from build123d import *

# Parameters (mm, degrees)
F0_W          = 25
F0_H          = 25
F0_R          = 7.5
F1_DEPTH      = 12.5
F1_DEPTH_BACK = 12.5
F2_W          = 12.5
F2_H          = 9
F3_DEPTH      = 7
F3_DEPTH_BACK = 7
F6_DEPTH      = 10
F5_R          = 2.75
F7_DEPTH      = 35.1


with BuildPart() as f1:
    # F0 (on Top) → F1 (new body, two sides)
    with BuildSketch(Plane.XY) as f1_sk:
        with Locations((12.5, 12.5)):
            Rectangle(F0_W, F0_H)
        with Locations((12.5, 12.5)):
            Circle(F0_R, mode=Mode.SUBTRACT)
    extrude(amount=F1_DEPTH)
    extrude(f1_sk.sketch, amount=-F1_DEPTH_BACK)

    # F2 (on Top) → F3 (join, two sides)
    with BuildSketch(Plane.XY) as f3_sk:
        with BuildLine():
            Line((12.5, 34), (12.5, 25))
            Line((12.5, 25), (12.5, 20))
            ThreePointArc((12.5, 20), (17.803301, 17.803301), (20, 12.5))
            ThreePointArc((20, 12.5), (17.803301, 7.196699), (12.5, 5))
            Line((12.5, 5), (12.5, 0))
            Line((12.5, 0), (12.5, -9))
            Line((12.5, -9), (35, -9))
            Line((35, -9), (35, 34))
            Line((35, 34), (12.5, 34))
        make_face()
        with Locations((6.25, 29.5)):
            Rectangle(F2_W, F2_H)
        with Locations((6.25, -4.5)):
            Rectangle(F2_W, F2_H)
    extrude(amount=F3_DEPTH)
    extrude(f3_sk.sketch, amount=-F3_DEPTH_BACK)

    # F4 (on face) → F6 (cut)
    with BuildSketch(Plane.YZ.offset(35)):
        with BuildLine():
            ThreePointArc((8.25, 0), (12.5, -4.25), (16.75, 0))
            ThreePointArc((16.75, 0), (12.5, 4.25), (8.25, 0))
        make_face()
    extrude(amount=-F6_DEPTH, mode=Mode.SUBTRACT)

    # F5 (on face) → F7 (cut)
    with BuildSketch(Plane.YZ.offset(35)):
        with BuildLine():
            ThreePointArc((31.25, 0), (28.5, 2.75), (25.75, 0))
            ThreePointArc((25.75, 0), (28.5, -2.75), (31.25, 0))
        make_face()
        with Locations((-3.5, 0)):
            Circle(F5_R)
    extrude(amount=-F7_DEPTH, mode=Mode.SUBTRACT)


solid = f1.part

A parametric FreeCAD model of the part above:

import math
import FreeCAD as App
import Part
import Sketcher
from FreeCAD import Vector


def add_polygon(sketch, points):
    """Adds a closed chain of lines whose ends are joined by coincident constraints."""
    first, n = sketch.GeometryCount, len(points)
    for a, b in zip(points, points[1:] + points[:1]):
        sketch.addGeometry(Part.LineSegment(App.Vector(*a, 0), App.Vector(*b, 0)), False)
    for i in range(n):
        sketch.addConstraint(Sketcher.Constraint("Coincident", first + i, 2, first + (i + 1) % n, 1))

doc = App.newDocument("Part")
body = doc.addObject("PartDesign::Body", "Body")

sketch1 = body.newObject("Sketcher::SketchObject", "Sketch")
sketch1.AttachmentSupport = (doc.getObject("XY_Plane"), [""])
sketch1.MapMode = "FlatFace"
add_polygon(sketch1, [(0, 25), (0, 0), (25, 0), (25, 25)])
sketch1.addGeometry(Part.Circle(Vector(12, 12, 0), Vector(0, 0, 1), 8), False)
sketch1.addConstraint(Sketcher.Constraint("Vertical", 0))
sketch1.addConstraint(Sketcher.Constraint("Horizontal", 1))
sketch1.addConstraint(Sketcher.Constraint("Vertical", 2))
sketch1.addConstraint(Sketcher.Constraint("Horizontal", 3))
sketch1.addConstraint(Sketcher.Constraint("Coincident", 0, 2, -1, 1))
sketch1.addConstraint(Sketcher.Constraint("Equal", 3, 0))
sketch1.addConstraint(Sketcher.Constraint("Diameter", 4, 15.0))
sketch1.addConstraint(Sketcher.Constraint("DistanceX", 1, 1, 1, 2, 25.0))
sketch1.addConstraint(Sketcher.Constraint("DistanceX", -1, 1, 4, 3, 12.5))
sketch1.addConstraint(Sketcher.Constraint("DistanceY", -1, 1, 4, 3, 12.5))
pad1 = body.newObject("PartDesign::Pad", "Pad")
pad1.Profile = sketch1
pad1.Type = "TwoLengths"
pad1.Length = 12.5
pad1.Length2 = 12.5

sketch2 = body.newObject("Sketcher::SketchObject", "Sketch001")
sketch2.AttachmentSupport = (doc.getObject("XY_Plane"), [""])
sketch2.MapMode = "FlatFace"
sketch2.addGeometry(Part.LineSegment(Vector(12, 25, 0), Vector(12, 20, 0)), False)
sketch2.addGeometry(Part.ArcOfCircle(Part.Circle(Vector(13, 13, 0), Vector(0, 0, 1), 7), math.radians(0), math.radians(90)), False)
sketch2.addGeometry(Part.ArcOfCircle(Part.Circle(Vector(13, 12, 0), Vector(0, 0, 1), 7), math.radians(-90), math.radians(0)), False)
sketch2.addGeometry(Part.LineSegment(Vector(12, 5, 0), Vector(12, 0, 0)), False)
sketch2.addGeometry(Part.LineSegment(Vector(12, 0, 0), Vector(0, 0, 0)), False)
sketch2.addGeometry(Part.LineSegment(Vector(0, 0, 0), Vector(0, -9, 0)), False)
sketch2.addGeometry(Part.LineSegment(Vector(0, -9, 0), Vector(35, -9, 0)), False)
sketch2.addGeometry(Part.LineSegment(Vector(35, -9, 0), Vector(35, 34, 0)), False)
sketch2.addGeometry(Part.LineSegment(Vector(35, 34, 0), Vector(0, 34, 0)), False)
sketch2.addGeometry(Part.LineSegment(Vector(0, 34, 0), Vector(0, 25, 0)), False)
sketch2.addGeometry(Part.LineSegment(Vector(0, 25, 0), Vector(12, 25, 0)), False)
sketch2.addConstraint(Sketcher.Constraint("Coincident", 0, 2, 1, 2))
sketch2.addConstraint(Sketcher.Constraint("Tangent", 1, 1, 2, 2))
sketch2.addConstraint(Sketcher.Constraint("Coincident", 2, 1, 3, 1))
sketch2.addConstraint(Sketcher.Constraint("Coincident", 3, 2, 4, 1))
sketch2.addConstraint(Sketcher.Constraint("Coincident", 4, 2, 5, 1))
sketch2.addConstraint(Sketcher.Constraint("Coincident", 5, 2, 6, 1))
sketch2.addConstraint(Sketcher.Constraint("Coincident", 6, 2, 7, 1))
sketch2.addConstraint(Sketcher.Constraint("Coincident", 7, 2, 8, 1))
sketch2.addConstraint(Sketcher.Constraint("Coincident", 8, 2, 9, 1))
sketch2.addConstraint(Sketcher.Constraint("Coincident", 9, 2, 10, 1))
sketch2.addConstraint(Sketcher.Constraint("Coincident", 10, 2, 0, 1))
sketch2.addConstraint(Sketcher.Constraint("Vertical", 0))
sketch2.addConstraint(Sketcher.Constraint("Vertical", 3))
sketch2.addConstraint(Sketcher.Constraint("Horizontal", 4))
sketch2.addConstraint(Sketcher.Constraint("Vertical", 5))
sketch2.addConstraint(Sketcher.Constraint("Horizontal", 6))
sketch2.addConstraint(Sketcher.Constraint("Vertical", 7))
sketch2.addConstraint(Sketcher.Constraint("Horizontal", 8))
sketch2.addConstraint(Sketcher.Constraint("Vertical", 9))
sketch2.addConstraint(Sketcher.Constraint("Horizontal", 10))
sketch2.addConstraint(Sketcher.Constraint("Coincident", 4, 2, -1, 1))
sketch2.addConstraint(Sketcher.Constraint("Equal", 1, 2))
sketch2.addConstraint(Sketcher.Constraint("PointOnObject", 8, 2, -2))
sketch2.addConstraint(Sketcher.Constraint("Horizontal", 2, 3, 1, 1))
sketch2.addConstraint(Sketcher.Constraint("Vertical", 2, 3, 0, 2))
sketch2.addConstraint(Sketcher.Constraint("Vertical", 0, 2, 2, 1))
sketch2.addConstraint(Sketcher.Constraint("Equal", 0, 3))
sketch2.addConstraint(Sketcher.Constraint("Equal", 5, 9))
sketch2.addConstraint(Sketcher.Constraint("Radius", 1, 7.5))
sketch2.addConstraint(Sketcher.Constraint("DistanceX", 6, 1, 6, 2, 35.0))
sketch2.addConstraint(Sketcher.Constraint("DistanceY", 0, 2, 0, 1, 5.0))
sketch2.addConstraint(Sketcher.Constraint("DistanceY", 5, 2, 5, 1, 9.0))
sketch2.addConstraint(Sketcher.Constraint("DistanceX", 4, 2, 4, 1, 12.5))
pad2 = body.newObject("PartDesign::Pad", "Pad001")
pad2.Profile = sketch2
pad2.Type = "TwoLengths"
pad2.Length = 7
pad2.Length2 = 7

sketch3 = body.newObject("Sketcher::SketchObject", "Sketch002")
sketch3.AttachmentSupport = (doc.getObject("YZ_Plane"), [""])
sketch3.MapMode = "FlatFace"
sketch3.AttachmentOffset = App.Placement(Vector(0, 0, 35), App.Rotation())
sketch3.addGeometry(Part.Circle(Vector(12.5, 0, 0), Vector(0, 0, 1), 4.2), False)
sketch3.addConstraint(Sketcher.Constraint("PointOnObject", 0, 3, -1))
sketch3.addConstraint(Sketcher.Constraint("Diameter", 0, 8.5))
sketch3.addConstraint(Sketcher.Constraint("DistanceX", -1, 1, 0, 3, 12.5))
pocket1 = body.newObject("PartDesign::Pocket", "Pocket")
pocket1.Profile = sketch3
pocket1.Length = 10

sketch4 = body.newObject("Sketcher::SketchObject", "Sketch003")
sketch4.AttachmentSupport = (doc.getObject("YZ_Plane"), [""])
sketch4.MapMode = "FlatFace"
sketch4.AttachmentOffset = App.Placement(Vector(0, 0, 35), App.Rotation())
sketch4.addGeometry(Part.Circle(Vector(28.5, 0, 0), Vector(0, 0, 1), 2.8), False)
sketch4.addGeometry(Part.Circle(Vector(-3.5, 0, 0), Vector(0, 0, 1), 2.8), False)
sketch4.addConstraint(Sketcher.Constraint("Equal", 0, 1))
sketch4.addConstraint(Sketcher.Constraint("PointOnObject", 0, 3, -1))
sketch4.addConstraint(Sketcher.Constraint("PointOnObject", 1, 3, -1))
sketch4.addConstraint(Sketcher.Constraint("Diameter", 0, 5.5))
sketch4.addConstraint(Sketcher.Constraint("DistanceX", 1, 3, 0, 3, 32.0))
sketch4.addConstraint(Sketcher.Constraint("DistanceX", -1, 1, 0, 3, 28.5))
pocket2 = body.newObject("PartDesign::Pocket", "Pocket001")
pocket2.Profile = sketch4
pocket2.Length = 35.1

doc.recompute()
